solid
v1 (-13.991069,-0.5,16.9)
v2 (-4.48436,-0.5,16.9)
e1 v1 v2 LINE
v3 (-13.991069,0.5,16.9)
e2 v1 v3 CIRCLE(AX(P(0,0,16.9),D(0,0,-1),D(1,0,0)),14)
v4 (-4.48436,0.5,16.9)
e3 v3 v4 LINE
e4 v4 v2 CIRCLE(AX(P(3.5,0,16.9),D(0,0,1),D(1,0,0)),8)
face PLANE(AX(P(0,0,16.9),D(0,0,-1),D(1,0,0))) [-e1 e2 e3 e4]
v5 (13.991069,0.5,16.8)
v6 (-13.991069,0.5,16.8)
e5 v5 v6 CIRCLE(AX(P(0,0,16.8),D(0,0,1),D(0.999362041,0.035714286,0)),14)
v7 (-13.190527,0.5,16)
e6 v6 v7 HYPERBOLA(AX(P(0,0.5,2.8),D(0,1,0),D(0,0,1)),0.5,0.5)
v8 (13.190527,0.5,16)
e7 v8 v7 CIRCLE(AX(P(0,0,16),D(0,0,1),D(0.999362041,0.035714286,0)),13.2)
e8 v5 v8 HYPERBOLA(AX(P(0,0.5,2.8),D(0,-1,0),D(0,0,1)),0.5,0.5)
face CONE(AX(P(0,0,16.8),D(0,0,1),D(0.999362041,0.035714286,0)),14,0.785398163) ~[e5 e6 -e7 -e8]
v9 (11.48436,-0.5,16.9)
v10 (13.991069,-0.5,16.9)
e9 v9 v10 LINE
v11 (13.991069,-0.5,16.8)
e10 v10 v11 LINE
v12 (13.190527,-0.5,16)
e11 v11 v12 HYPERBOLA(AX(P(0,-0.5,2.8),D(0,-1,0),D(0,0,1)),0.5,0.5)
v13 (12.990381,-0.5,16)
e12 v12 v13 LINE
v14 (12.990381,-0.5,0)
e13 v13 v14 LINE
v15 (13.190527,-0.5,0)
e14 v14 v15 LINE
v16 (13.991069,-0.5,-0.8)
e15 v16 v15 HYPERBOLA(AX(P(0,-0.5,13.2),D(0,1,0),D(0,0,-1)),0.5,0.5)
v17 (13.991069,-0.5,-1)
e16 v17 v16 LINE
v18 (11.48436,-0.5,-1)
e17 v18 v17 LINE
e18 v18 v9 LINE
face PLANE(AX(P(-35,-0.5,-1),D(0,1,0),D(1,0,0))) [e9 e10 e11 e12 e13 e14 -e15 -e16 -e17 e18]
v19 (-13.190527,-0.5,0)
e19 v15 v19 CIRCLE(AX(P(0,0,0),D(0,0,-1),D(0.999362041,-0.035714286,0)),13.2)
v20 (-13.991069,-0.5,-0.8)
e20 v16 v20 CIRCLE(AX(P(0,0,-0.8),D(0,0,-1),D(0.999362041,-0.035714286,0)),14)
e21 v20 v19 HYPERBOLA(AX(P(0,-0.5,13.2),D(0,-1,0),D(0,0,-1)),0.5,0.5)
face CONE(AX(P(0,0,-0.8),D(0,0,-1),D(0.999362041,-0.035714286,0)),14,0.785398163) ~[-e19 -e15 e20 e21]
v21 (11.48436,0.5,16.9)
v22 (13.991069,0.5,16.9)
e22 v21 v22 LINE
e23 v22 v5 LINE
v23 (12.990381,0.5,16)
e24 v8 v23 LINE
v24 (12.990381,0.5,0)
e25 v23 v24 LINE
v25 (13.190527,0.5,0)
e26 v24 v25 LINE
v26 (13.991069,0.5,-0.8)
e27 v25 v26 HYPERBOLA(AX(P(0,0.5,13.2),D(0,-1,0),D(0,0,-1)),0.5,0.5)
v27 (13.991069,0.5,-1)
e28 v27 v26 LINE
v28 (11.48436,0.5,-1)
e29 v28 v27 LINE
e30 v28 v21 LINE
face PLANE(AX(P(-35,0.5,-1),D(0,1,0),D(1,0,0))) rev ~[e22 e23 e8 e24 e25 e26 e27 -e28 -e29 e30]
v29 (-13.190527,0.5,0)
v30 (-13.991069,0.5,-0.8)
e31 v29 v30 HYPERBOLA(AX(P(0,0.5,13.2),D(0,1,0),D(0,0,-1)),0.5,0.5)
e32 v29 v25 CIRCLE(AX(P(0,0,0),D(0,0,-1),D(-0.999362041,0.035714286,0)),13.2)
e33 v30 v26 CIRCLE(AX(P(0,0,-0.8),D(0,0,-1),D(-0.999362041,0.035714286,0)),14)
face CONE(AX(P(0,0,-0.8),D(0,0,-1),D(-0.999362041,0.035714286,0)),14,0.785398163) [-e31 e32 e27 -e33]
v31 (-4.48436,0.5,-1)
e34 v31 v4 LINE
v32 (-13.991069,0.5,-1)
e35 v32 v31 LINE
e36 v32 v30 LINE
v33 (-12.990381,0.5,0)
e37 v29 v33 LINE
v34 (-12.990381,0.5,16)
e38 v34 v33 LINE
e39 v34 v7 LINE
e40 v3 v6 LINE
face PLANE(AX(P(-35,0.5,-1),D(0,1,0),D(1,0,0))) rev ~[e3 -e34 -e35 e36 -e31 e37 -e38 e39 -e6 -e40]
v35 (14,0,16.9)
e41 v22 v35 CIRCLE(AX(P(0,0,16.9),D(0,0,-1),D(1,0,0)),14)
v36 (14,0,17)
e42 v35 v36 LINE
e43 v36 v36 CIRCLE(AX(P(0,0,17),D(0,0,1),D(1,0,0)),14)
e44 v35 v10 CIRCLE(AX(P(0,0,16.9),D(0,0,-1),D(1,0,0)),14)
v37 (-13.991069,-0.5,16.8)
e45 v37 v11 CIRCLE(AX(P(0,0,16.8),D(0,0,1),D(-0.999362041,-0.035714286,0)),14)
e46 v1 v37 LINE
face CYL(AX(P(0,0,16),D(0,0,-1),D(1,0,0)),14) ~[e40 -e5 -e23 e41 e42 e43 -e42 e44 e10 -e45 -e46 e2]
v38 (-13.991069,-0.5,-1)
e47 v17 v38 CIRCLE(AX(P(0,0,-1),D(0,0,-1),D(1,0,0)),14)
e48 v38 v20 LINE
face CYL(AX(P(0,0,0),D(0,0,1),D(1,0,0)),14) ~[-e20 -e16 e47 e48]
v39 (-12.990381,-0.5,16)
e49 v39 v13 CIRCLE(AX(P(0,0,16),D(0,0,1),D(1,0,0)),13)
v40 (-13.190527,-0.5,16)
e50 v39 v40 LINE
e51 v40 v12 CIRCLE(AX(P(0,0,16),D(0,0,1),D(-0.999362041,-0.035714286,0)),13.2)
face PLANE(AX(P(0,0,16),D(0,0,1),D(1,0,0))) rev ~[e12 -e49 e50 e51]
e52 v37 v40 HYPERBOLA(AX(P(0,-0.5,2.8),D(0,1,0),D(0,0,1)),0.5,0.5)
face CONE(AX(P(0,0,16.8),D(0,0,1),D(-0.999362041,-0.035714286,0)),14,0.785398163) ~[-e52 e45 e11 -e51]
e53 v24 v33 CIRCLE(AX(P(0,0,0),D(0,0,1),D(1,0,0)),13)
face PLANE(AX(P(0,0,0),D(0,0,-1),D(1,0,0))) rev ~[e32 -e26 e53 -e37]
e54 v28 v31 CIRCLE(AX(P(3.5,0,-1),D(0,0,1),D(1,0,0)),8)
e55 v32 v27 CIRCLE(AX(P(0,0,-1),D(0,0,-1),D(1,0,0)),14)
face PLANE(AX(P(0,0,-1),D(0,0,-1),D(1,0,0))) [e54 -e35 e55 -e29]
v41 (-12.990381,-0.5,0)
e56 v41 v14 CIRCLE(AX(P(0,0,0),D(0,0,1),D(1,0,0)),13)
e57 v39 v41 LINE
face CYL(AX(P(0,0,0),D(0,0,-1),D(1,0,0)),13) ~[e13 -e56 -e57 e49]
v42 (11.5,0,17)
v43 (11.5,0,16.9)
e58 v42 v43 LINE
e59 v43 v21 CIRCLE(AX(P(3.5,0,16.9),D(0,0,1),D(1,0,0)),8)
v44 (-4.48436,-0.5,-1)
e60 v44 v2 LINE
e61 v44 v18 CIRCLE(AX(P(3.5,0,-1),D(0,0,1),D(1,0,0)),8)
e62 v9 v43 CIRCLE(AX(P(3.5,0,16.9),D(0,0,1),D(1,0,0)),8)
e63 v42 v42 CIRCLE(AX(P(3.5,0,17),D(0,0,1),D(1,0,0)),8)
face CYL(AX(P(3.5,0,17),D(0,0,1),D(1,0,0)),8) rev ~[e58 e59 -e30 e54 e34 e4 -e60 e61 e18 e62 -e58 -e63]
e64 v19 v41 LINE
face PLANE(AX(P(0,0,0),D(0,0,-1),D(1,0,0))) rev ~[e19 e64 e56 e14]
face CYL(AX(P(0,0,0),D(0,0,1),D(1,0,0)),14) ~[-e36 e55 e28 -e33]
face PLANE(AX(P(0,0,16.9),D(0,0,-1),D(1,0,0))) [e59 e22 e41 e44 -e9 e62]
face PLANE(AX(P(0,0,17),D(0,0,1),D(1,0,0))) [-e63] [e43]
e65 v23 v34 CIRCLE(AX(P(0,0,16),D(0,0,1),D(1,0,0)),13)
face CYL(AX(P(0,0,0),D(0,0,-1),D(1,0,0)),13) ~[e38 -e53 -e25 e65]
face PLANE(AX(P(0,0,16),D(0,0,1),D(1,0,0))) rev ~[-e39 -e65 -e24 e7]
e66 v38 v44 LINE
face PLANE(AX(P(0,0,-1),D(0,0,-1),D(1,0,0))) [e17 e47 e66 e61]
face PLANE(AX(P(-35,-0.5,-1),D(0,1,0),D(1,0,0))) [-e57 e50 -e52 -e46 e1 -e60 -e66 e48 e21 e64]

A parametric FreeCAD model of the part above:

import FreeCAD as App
import Part
import Sketcher

V = App.Vector
Q = App.Units.Quantity


def edges_at(feature, points):
    """Names of the edges that pass closest to the given points."""
    edges = feature.Shape.Edges
    near = lambda p: min(range(len(edges)), key=lambda i: edges[i].distToShape(Part.Vertex(*p))[0])
    return sorted({f"Edge{near(p) + 1}" for p in points})


def add_polygon(sketch, points):
    """Adds a closed chain of lines whose ends are joined by coincident constraints."""
    first, n = sketch.GeometryCount, len(points)
    for a, b in zip(points, points[1:] + points[:1]):
        sketch.addGeometry(Part.LineSegment(App.Vector(*a, 0), App.Vector(*b, 0)), False)
    for i in range(n):
        sketch.addConstraint(Sketcher.Constraint("Coincident", first + i, 2, first + (i + 1) % n, 1))

doc = App.newDocument("Part")
body = doc.addObject("PartDesign::Body", "Body")

# Sketch on XY plane
sketch1 = body.newObject("Sketcher::SketchObject", "Sketch")
sketch1.AttachmentSupport = (doc.getObject("XY_Plane"), [""])
sketch1.MapMode = "FlatFace"
sketch1.addGeometry(Part.Circle(V(0, 0, 0), V(0, 0, 1), 13), False)
sketch1.addConstraint([
    Sketcher.Constraint("Coincident", 0, 3, -1, 1),
    Sketcher.Constraint("Diameter", 0, Q("26 mm")),
])
pad1 = body.newObject("PartDesign::Pad", "Pad")
pad1.Profile = sketch1
pad1.Length = 16

# Sketch on XY plane
sketch2 = body.newObject("Sketcher::SketchObject", "Sketch001")
sketch2.AttachmentSupport = (doc.getObject("XY_Plane"), [""])
sketch2.MapMode = "FlatFace"
sketch2.AttachmentOffset = App.Placement(V(0, 0, 16), App.Rotation())
sketch2.addGeometry(Part.Circle(V(0, 0, 0), V(0, 0, 1), 14), False)
sketch2.addConstraint([
    Sketcher.Constraint("Coincident", 0, 3, -1, 1),
    Sketcher.Constraint("Diameter", 0, Q("28 mm")),
])
pad2 = body.newObject("PartDesign::Pad", "Pad001")
pad2.Profile = sketch2
pad2.Length = 1

# Sketch on XY plane
sketch3 = body.newObject("Sketcher::SketchObject", "Sketch002")
sketch3.AttachmentSupport = (doc.getObject("XY_Plane"), [""])
sketch3.MapMode = "FlatFace"
sketch3.addGeometry(Part.Circle(V(0, 0, 0), V(0, 0, 1), 14), False)
sketch3.addConstraint([
    Sketcher.Constraint("Coincident", 0, 3, -1, 1),
    Sketcher.Constraint("Diameter", 0, Q("28 mm")),
])
pad3 = body.newObject("PartDesign::Pad", "Pad002")
pad3.Profile = sketch3
pad3.Length = 1
pad3.Reversed = True

# Sketch on XY plane
sketch4 = body.newObject("Sketcher::SketchObject", "Sketch003")
sketch4.AttachmentSupport = (doc.getObject("XY_Plane"), [""])
sketch4.MapMode = "FlatFace"
sketch4.AttachmentOffset = App.Placement(V(0, 0, 17), App.Rotation())
sketch4.addGeometry(Part.Circle(V(4, 0, 0), V(0, 0, 1), 8), False)
sketch4.addConstraint([
    Sketcher.Constraint("PointOnObject", 0, 3, -1),
    Sketcher.Constraint("Diameter", 0, Q("16 mm")),
    Sketcher.Constraint("DistanceX", -1, 1, 0, 3, Q("3.5 mm")),
])
pocket1 = body.newObject("PartDesign::Pocket", "Pocket")
pocket1.Profile = sketch4
pocket1.Type = "ThroughAll"

# Sketch on XY plane
sketch5 = body.newObject("Sketcher::SketchObject", "Sketch004")
sketch5.AttachmentSupport = (doc.getObject("XY_Plane"), [""])
sketch5.MapMode = "FlatFace"
sketch5.AttachmentOffset = App.Placement(V(0, 0, -1), App.Rotation())
add_polygon(sketch5, [(-35, -0.5), (-35, 0.5), (35, 0.5), (35, -0.5)])  # lines 0-3
sketch5.addConstraint([
    Sketcher.Constraint("Vertical", 0),
    Sketcher.Constraint("Horizontal", 1),
    Sketcher.Constraint("Vertical", 2),
    Sketcher.Constraint("Horizontal", 3),
    Sketcher.Constraint("Symmetric", 0, 2, 2, 2, -1, 1),
    Sketcher.Constraint("DistanceX", 1, 1, 1, 2, Q("70 mm")),
    Sketcher.Constraint("DistanceY", 0, 1, 0, 2, Q("1 mm")),
])
pocket2 = body.newObject("PartDesign::Pocket", "Pocket001")
pocket2.Profile = sketch5
pocket2.Length = 17.9
pocket2.Reversed = True
doc.recompute()

chamfer = body.newObject("PartDesign::Chamfer", "Chamfer")
chamfer.Base = (pocket2, edges_at(pocket2, [
    (0, 14, 16),
    (0, -14, 16),
    (0, -14, 0),
    (0, 14, 0),
]))
chamfer.Size = 0.8

doc.recompute()
